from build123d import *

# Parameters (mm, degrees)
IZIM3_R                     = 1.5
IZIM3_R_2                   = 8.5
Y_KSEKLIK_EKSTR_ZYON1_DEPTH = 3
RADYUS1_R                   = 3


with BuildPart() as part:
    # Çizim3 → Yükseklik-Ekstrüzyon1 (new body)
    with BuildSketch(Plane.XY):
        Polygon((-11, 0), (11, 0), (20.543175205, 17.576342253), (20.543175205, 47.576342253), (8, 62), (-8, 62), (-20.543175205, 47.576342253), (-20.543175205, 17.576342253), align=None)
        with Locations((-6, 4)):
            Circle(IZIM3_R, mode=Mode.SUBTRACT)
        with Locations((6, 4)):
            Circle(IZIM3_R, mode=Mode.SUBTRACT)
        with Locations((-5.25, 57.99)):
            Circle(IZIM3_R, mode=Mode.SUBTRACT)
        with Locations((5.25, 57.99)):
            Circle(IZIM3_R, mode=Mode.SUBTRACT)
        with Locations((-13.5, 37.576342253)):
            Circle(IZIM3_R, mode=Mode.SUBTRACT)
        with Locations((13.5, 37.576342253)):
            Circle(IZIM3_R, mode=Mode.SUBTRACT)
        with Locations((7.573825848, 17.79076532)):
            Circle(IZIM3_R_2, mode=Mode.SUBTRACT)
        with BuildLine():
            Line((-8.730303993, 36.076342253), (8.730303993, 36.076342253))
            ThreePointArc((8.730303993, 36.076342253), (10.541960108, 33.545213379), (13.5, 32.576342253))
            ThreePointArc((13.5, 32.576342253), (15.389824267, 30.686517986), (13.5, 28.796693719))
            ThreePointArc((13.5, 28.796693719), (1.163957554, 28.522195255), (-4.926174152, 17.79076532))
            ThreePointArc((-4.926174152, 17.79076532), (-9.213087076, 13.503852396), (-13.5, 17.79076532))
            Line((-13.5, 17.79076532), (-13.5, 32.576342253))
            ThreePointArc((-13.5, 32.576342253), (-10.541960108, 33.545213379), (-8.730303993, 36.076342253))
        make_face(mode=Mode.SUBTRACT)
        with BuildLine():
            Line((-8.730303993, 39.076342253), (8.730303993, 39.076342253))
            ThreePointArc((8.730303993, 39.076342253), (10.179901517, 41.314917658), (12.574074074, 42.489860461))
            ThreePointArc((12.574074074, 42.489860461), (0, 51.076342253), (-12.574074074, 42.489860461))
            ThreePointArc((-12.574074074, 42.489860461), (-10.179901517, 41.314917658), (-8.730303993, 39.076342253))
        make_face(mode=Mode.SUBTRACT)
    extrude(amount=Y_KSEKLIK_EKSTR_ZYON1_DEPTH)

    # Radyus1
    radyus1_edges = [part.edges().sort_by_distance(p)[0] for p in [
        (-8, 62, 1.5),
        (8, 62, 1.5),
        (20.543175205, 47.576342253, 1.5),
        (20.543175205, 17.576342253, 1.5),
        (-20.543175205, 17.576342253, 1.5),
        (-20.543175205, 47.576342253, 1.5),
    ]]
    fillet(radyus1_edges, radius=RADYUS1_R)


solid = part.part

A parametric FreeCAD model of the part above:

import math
import FreeCAD as App
import Part
import Sketcher
Q = App.Units.Quantity


def edges_at(feature, points):
    """Names of the edges that pass closest to the given points."""
    edges = feature.Shape.Edges
    near = lambda p: min(range(len(edges)), key=lambda i: edges[i].distToShape(Part.Vertex(*p))[0])
    return sorted({f"Edge{near(p) + 1}" for p in points})

doc = App.newDocument("Part")
body = doc.addObject("PartDesign::Body", "Body")

# Sketch on XY plane
sketch1 = doc.addObject("Sketcher::SketchObject", "Sketch")
body.addObject(sketch1)
sketch1.AttachmentSupport = (doc.XY_Plane, [""])
sketch1.MapMode = "FlatFace"
sketch1.addGeometry([
    Part.LineSegment(App.Vector(-11, 0, 0), App.Vector(11, 0, 0)),  # 0
    Part.LineSegment(App.Vector(11, 0, 0), App.Vector(20.543175, 17.576342, 0)),  # 1
    Part.LineSegment(App.Vector(20.543175, 17.576342, 0), App.Vector(20.543175, 47.576342, 0)),  # 2
    Part.LineSegment(App.Vector(20.543175, 47.576342, 0), App.Vector(8, 62, 0)),  # 3
    Part.LineSegment(App.Vector(8, 62, 0), App.Vector(-8, 62, 0)),  # 4
    Part.LineSegment(App.Vector(-8, 62, 0), App.Vector(-20.543175, 47.576342, 0)),  # 5
    Part.LineSegment(App.Vector(-20.543175, 47.576342, 0), App.Vector(-20.543175, 17.576342, 0)),  # 6
    Part.LineSegment(App.Vector(-20.543175, 17.576342, 0), App.Vector(-11, 0, 0)),  # 7
    Part.Circle(App.Vector(-6, 4, 0), App.Vector(0, 0, 1), 1.5),  # 8
    Part.Circle(App.Vector(6, 4, 0), App.Vector(0, 0, 1), 1.5),  # 9
    Part.Circle(App.Vector(7.573826, 17.790765, 0), App.Vector(0, 0, 1), 8.5),  # 10
    Part.ArcOfCircle(Part.Circle(App.Vector(-13.5, 37.576342, 0), App.Vector(0, 0, 1), 5), math.radians(-90), math.radians(-17.457603)),  # 11
    Part.LineSegment(App.Vector(-8.730304, 36.076342, 0), App.Vector(8.730304, 36.076342, 0)),  # 12
    Part.ArcOfCircle(Part.Circle(App.Vector(13.5, 37.576342, 0), App.Vector(0, 0, 1), 5), math.radians(-162.542397), math.radians(-90)),  # 13
    Part.ArcOfCircle(Part.Circle(App.Vector(13.5, 30.686518, 0), App.Vector(0, 0, 1), 1.889824), math.radians(-90), math.radians(90)),  # 14
    Part.ArcOfCircle(Part.Circle(App.Vector(7.573826, 17.790765, 0), App.Vector(0, 0, 1), 12.5), math.radians(61.699628), math.radians(180)),  # 15
    Part.ArcOfCircle(Part.Circle(App.Vector(-9.213087, 17.790765, 0), App.Vector(0, 0, 1), 4.286913), math.radians(180), math.radians(360)),  # 16
    Part.LineSegment(App.Vector(-13.5, 17.790765, 0), App.Vector(-13.5, 32.576342, 0)),  # 17
    Part.Circle(App.Vector(-13.5, 37.576342, 0), App.Vector(0, 0, 1), 1.5),  # 18
    Part.LineSegment(App.Vector(8.730304, 39.076342, 0), App.Vector(-8.730304, 39.076342, 0)),  # 19
    Part.ArcOfCircle(Part.Circle(App.Vector(-13.5, 37.576342, 0), App.Vector(0, 0, 1), 5), math.radians(17.457603), math.radians(79.328071)),  # 20
    Part.ArcOfCircle(Part.Circle(App.Vector(0, 37.576342, 0), App.Vector(0, 0, 1), 13.5), math.radians(21.343859), math.radians(158.656141)),  # 21
    Part.ArcOfCircle(Part.Circle(App.Vector(13.5, 37.576342, 0), App.Vector(0, 0, 1), 5), math.radians(100.671929), math.radians(162.542397)),  # 22
    Part.Circle(App.Vector(-5.25, 57.99, 0), App.Vector(0, 0, 1), 1.5),  # 23
    Part.Circle(App.Vector(13.5, 37.576342, 0), App.Vector(0, 0, 1), 1.5),  # 24
    Part.Circle(App.Vector(5.25, 57.99, 0), App.Vector(0, 0, 1), 1.5),  # 25
], False)
sketch1.addConstraint([
    Sketcher.Constraint("Coincident", 0, 2, 1, 1),
    Sketcher.Constraint("Coincident", 1, 2, 2, 1),
    Sketcher.Constraint("Coincident", 2, 2, 3, 1),
    Sketcher.Constraint("Coincident", 3, 2, 4, 1),
    Sketcher.Constraint("Coincident", 4, 2, 5, 1),
    Sketcher.Constraint("Coincident", 5, 2, 6, 1),
    Sketcher.Constraint("Coincident", 6, 2, 7, 1),
    Sketcher.Constraint("Coincident", 7, 2, 0, 1),
    Sketcher.Constraint("Coincident", 11, 2, 12, 1),
    Sketcher.Constraint("Coincident", 12, 2, 13, 1),
    Sketcher.Constraint("Tangent", 13, 2, 14, 2),
    Sketcher.Constraint("Coincident", 14, 1, 15, 1),
    Sketcher.Constraint("Tangent", 15, 2, 16, 2),
    Sketcher.Constraint("Tangent", 16, 1, 17, 1),
    Sketcher.Constraint("Coincident", 17, 2, 11, 1),
    Sketcher.Constraint("Coincident", 19, 2, 20, 1),
    Sketcher.Constraint("Coincident", 20, 2, 21, 2),
    Sketcher.Constraint("Coincident", 21, 1, 22, 1),
    Sketcher.Constraint("Coincident", 22, 2, 19, 1),
    Sketcher.Constraint("Horizontal", 0),
    Sketcher.Constraint("Vertical", 2),
    Sketcher.Constraint("Horizontal", 4),
    Sketcher.Constraint("Vertical", 6),
    Sketcher.Constraint("Horizontal", 12),
    Sketcher.Constraint("Vertical", 17),
    Sketcher.Constraint("Horizontal", 19),
    Sketcher.Constraint("Coincident", 15, 3, 10, 3),
    Sketcher.Constraint("Coincident", 18, 3, 11, 3),
    Sketcher.Constraint("Coincident", 20, 3, 11, 3),
    Sketcher.Constraint("Coincident", 22, 3, 13, 3),
    Sketcher.Constraint("Coincident", 24, 3, 13, 3),
    Sketcher.Constraint("Equal", 8, 9),
    Sketcher.Constraint("Equal", 11, 13),
    Sketcher.Constraint("Equal", 9, 18),
    Sketcher.Constraint("Equal", 13, 20),
    Sketcher.Constraint("Equal", 20, 22),
    Sketcher.Constraint("Equal", 18, 23),
    Sketcher.Constraint("Equal", 23, 24),
    Sketcher.Constraint("Equal", 24, 25),
    Sketcher.Constraint("Symmetric", 0, 2, 7, 2, -1, 1),
    Sketcher.Constraint("Symmetric", 8, 3, 9, 3, -2),
    Sketcher.Constraint("Symmetric", 11, 3, 13, 3, -2),
    Sketcher.Constraint("Symmetric", 23, 3, 25, 3, -2),
    Sketcher.Constraint("Symmetric", 2, 2, 5, 2, -2),
    Sketcher.Constraint("PointOnObject", 21, 3, -2),
    Sketcher.Constraint("Horizontal", 15, 3, 16, 3),
    Sketcher.Constraint("Horizontal", 20, 3, 21, 3),
    Sketcher.Constraint("Horizontal", 1, 2, 6, 2),
    Sketcher.Constraint("Vertical", 13, 3, 14, 3),
    Sketcher.Constraint("Vertical", 13, 2, 14, 1),
    Sketcher.Constraint("Vertical", 20, 3, 16, 1),
    Sketcher.Constraint("Vertical", 11, 2, 19, 2),
    Sketcher.Constraint("Equal", 3, 5),
    Sketcher.Constraint("Diameter", 8, 3.0),
    Sketcher.Constraint("Diameter", 10, 17.0),
    Sketcher.Constraint("Radius", 11, 5.0),
    Sketcher.Constraint("Radius", 15, 12.5),
    Sketcher.Constraint("Radius", 21, 13.5),
    Sketcher.Constraint("DistanceX", 0, 1, 0, 2, 22.0),
    Sketcher.Constraint("DistanceX", 4, 2, 4, 1, 16.0),
    Sketcher.Constraint("DistanceY", 2, 1, 2, 2, 30.0),
    Sketcher.Constraint("Distance", 1, 20.0),
    Sketcher.Constraint("DistanceX", 8, 3, -1, 1, 6.0),
    Sketcher.Constraint("DistanceY", -1, 1, 8, 3, 4.0),
    Sketcher.Constraint("DistanceY", -1, 1, 3, 2, 62.0),
    Sketcher.Constraint("Angle", 1, Q("61.5 deg")),
    Sketcher.Constraint("DistanceX", 11, 3, 13, 3, 27.0),
    Sketcher.Constraint("DistanceY", 24, 3, 2, 2, 10.0),
    Sketcher.Constraint("DistanceY", 11, 2, 19, 2, 3.0),
    Sketcher.Constraint("DistanceX", 23, 3, 25, 3, 10.5),
    Sketcher.Constraint("DistanceY", -1, 1, 23, 3, 57.99),
    Sketcher.Constraint("Radius", 14, 1.889824),
    Sketcher.Constraint("Radius", 16, 4.286913),
])
pad1 = doc.addObject("PartDesign::Pad", "Pad")
body.addObject(pad1)
pad1.Profile = sketch1
pad1.Length = 3
doc.recompute()

fillet = doc.addObject("PartDesign::Fillet", "Fillet")
body.addObject(fillet)
fillet.Base = (pad1, edges_at(pad1, [
    (-8, 62, 1.5),
    (8, 62, 1.5),
    (20.543, 47.576, 1.5),
    (20.543, 17.576, 1.5),
    (-20.543, 17.576, 1.5),
    (-20.543, 47.576, 1.5),
]))
fillet.Radius = 3

doc.recompute()
